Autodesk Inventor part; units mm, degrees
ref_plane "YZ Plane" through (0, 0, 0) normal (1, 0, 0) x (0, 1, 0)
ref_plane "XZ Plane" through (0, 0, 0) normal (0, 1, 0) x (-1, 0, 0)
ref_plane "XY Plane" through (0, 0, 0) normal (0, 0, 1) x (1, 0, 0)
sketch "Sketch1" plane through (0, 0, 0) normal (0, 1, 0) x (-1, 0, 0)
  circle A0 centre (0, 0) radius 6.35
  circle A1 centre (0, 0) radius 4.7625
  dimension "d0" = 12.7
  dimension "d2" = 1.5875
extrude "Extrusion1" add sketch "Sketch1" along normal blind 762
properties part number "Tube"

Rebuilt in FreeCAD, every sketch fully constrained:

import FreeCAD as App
import Part
import Sketcher
from FreeCAD import Vector
Q = App.Units.Quantity

doc = App.newDocument("Part")
body = doc.addObject("PartDesign::Body", "Body")

sketch1 = doc.addObject("Sketcher::SketchObject", "Sketch")
body.addObject(sketch1)
sketch1.AttachmentSupport = (doc.XZ_Plane, [""])
sketch1.MapMode = "FlatFace"
sketch1.addGeometry([
    Part.Circle(Vector(0, 0, 0), Vector(0, 0, 1), 6.35),
    Part.Circle(Vector(0, 0, 0), Vector(0, 0, 1), 4.7625),
], False)
sketch1.addConstraint([
    Sketcher.Constraint("Coincident", 0, 3, -1, 1),
    Sketcher.Constraint("Coincident", 1, 3, -1, 1),
    Sketcher.Constraint("Diameter", 0, Q("0.5 in")),
    Sketcher.Constraint("Diameter", 1, Q("0.375 in")),
])
pad1 = doc.addObject("PartDesign::Pad", "Pad")
body.addObject(pad1)
pad1.Profile = sketch1
pad1.Length = Q("30 in")
pad1.Reversed = True

doc.recompute()
